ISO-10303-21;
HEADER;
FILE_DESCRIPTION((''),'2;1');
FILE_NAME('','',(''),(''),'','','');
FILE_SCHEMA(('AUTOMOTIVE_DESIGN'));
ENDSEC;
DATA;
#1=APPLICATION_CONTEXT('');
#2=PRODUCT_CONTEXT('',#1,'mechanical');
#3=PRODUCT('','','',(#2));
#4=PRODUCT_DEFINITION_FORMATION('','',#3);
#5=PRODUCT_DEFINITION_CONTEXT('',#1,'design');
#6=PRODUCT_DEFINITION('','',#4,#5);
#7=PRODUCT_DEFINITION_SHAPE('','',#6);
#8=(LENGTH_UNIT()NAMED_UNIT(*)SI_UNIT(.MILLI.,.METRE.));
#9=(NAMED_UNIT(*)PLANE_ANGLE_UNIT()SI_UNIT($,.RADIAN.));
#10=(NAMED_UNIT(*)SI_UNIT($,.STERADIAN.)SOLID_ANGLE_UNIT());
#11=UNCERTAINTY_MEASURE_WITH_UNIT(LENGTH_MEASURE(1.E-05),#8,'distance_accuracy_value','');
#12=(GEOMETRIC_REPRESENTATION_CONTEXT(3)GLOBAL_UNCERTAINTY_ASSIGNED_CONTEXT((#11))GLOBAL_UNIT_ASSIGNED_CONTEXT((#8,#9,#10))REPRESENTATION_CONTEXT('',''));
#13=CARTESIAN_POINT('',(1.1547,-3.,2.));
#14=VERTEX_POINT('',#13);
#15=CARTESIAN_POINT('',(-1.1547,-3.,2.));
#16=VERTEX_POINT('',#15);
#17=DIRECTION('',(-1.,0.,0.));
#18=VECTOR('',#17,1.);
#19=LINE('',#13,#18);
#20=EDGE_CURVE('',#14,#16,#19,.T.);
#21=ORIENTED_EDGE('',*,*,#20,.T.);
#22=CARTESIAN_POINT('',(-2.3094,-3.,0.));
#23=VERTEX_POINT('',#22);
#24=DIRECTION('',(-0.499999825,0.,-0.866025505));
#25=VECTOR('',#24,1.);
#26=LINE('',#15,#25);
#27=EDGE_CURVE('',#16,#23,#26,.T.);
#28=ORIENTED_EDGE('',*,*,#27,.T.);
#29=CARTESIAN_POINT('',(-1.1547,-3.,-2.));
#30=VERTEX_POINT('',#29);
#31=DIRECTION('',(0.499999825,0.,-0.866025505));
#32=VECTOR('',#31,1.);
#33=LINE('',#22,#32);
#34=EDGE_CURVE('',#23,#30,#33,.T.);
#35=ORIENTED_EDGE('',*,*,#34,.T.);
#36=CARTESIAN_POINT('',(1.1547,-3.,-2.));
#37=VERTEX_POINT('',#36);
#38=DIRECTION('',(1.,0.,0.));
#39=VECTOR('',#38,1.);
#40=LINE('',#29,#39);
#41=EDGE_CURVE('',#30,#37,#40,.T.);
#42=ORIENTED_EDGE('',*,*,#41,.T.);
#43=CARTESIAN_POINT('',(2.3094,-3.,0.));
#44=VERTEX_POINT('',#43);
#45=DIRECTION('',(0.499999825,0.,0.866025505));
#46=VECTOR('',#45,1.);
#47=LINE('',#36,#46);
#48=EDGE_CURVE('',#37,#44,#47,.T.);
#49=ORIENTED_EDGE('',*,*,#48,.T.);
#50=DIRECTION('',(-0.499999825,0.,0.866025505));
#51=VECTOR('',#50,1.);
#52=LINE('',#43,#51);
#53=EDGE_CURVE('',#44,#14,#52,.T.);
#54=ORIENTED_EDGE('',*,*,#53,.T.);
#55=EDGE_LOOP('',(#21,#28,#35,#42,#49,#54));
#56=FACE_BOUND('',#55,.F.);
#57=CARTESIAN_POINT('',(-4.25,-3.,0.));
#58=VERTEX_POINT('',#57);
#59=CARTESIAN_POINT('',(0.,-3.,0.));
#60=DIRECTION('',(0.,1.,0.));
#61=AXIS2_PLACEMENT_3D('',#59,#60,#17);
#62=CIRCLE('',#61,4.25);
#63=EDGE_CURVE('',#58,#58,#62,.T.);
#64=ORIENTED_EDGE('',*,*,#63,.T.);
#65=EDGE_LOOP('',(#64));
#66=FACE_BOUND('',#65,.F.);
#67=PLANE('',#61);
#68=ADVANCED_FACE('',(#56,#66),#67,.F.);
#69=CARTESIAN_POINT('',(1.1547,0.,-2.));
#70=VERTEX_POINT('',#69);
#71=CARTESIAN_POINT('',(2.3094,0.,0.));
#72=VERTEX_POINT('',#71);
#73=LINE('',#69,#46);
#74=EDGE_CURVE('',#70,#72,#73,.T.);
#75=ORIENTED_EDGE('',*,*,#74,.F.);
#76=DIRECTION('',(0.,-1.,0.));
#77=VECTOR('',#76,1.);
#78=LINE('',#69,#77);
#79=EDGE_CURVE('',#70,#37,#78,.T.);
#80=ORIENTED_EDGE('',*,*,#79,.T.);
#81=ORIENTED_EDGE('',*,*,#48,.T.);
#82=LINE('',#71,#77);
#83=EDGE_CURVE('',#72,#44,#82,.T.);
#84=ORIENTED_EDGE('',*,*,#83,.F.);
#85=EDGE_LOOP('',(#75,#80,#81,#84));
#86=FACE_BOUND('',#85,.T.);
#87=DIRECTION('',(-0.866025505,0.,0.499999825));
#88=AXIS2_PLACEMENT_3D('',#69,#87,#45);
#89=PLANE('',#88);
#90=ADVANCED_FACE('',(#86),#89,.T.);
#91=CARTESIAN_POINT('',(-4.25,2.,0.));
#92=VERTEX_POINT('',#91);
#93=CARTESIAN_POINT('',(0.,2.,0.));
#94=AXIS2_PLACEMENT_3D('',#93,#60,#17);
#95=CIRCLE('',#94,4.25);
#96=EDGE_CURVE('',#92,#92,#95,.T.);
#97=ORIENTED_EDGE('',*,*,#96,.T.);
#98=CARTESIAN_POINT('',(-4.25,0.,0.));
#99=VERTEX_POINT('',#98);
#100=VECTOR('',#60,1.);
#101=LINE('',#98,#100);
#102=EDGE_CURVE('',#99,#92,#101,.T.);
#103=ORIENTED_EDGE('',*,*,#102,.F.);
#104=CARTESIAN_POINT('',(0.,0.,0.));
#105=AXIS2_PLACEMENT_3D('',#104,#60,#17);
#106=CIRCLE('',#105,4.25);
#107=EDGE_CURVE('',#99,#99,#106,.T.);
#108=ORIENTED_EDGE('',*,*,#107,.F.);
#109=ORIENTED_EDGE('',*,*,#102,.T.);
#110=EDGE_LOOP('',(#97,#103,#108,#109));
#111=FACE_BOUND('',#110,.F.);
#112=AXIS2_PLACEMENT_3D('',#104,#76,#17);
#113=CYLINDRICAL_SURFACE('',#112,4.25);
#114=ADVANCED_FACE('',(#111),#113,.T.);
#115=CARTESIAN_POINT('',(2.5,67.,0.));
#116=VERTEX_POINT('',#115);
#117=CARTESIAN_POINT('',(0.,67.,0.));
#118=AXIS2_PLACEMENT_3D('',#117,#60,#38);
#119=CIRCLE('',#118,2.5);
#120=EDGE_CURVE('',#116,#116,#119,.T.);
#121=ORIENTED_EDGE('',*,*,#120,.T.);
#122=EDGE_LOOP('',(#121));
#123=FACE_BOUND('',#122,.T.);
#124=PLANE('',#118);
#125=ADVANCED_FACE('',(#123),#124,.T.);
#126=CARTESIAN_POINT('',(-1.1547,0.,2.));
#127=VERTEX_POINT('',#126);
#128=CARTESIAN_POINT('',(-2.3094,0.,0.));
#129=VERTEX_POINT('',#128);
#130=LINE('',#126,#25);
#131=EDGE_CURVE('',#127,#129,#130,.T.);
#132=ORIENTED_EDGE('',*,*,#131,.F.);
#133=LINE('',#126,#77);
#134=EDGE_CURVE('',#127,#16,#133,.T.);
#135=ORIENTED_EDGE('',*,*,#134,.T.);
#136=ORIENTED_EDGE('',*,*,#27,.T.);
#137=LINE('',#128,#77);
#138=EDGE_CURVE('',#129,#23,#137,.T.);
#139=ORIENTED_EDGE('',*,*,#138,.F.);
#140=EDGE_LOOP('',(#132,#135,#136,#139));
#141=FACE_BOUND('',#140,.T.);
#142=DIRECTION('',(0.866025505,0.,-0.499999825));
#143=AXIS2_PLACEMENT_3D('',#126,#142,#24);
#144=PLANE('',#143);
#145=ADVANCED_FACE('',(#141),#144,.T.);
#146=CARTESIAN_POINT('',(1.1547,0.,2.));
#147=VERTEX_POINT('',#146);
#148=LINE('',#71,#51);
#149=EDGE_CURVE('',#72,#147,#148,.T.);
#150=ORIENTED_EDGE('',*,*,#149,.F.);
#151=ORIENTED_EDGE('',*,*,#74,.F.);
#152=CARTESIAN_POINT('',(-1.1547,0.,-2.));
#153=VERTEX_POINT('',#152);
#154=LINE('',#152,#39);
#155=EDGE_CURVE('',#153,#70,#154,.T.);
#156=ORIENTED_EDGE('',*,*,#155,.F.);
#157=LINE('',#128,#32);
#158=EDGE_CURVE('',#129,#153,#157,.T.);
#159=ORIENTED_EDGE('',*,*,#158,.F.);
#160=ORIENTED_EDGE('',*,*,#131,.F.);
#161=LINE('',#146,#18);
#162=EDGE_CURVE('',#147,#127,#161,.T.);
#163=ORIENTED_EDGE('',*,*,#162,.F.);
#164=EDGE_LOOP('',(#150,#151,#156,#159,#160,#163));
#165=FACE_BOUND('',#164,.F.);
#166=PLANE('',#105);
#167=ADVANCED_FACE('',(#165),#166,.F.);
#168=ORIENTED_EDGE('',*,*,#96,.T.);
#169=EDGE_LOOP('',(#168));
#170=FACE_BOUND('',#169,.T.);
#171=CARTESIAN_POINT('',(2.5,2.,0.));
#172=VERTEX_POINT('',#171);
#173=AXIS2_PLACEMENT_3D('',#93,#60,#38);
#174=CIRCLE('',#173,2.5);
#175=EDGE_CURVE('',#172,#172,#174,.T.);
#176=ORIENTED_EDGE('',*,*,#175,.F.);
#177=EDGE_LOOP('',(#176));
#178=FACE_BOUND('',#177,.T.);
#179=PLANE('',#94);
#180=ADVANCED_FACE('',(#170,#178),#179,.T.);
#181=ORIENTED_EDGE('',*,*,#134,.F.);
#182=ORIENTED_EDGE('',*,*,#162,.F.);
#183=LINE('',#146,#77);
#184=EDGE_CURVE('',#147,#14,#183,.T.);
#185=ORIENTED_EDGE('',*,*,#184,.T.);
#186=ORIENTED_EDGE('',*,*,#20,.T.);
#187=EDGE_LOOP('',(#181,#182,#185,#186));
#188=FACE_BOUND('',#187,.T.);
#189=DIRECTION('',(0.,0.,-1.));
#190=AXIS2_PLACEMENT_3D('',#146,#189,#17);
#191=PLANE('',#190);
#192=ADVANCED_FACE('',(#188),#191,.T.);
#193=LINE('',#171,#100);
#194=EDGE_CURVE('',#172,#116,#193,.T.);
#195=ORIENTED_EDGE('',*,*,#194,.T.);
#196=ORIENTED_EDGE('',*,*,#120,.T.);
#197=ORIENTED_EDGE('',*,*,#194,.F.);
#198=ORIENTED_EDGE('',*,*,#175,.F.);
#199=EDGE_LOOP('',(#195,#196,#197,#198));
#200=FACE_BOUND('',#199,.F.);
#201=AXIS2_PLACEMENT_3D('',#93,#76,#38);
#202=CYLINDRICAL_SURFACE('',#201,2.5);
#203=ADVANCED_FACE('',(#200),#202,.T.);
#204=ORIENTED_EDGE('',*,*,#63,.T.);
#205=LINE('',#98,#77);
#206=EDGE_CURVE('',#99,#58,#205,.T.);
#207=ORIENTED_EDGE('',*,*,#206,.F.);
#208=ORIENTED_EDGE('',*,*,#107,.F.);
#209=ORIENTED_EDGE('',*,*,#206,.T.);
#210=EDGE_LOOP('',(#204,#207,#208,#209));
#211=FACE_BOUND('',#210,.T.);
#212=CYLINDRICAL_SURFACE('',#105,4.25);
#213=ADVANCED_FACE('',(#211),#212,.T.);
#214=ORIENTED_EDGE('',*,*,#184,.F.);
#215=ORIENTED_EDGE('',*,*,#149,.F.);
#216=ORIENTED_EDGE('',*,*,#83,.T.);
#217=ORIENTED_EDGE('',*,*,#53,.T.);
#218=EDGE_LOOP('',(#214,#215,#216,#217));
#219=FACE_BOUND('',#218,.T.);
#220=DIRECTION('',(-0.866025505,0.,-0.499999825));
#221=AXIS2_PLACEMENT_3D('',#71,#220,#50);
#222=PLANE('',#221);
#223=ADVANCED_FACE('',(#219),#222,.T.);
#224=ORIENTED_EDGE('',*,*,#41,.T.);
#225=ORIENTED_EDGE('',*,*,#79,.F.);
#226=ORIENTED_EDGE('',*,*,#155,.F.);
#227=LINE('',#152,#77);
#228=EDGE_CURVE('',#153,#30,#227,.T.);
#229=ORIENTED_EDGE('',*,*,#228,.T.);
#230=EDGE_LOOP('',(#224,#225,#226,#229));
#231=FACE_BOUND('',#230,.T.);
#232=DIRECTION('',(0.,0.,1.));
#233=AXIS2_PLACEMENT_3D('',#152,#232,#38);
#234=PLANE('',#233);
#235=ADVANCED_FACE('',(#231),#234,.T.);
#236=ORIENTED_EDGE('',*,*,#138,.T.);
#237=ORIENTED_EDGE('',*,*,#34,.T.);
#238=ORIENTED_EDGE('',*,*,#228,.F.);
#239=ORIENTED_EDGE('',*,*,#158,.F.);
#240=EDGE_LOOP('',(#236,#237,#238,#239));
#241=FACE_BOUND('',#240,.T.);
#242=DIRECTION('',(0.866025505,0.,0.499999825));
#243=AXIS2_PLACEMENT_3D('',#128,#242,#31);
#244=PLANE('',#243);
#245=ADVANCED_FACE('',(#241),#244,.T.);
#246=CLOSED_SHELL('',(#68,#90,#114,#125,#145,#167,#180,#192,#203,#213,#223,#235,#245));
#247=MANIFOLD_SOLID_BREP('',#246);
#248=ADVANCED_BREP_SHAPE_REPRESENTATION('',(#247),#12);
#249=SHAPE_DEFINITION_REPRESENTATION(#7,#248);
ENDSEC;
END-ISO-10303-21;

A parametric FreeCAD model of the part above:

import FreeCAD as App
import Part
import Sketcher
Q = App.Units.Quantity

doc = App.newDocument("Part")
params = doc.addObject("Spreadsheet::Sheet", "Params")
for row, (alias, value) in enumerate([
    ("sketch1_diameter", "8.5 mm"),
    ("pad1_length", "2 mm"),
    ("sketch2_diameter", "8.5 mm"),
    ("pad2_length", "3 mm"),
    ("sketch3_diameter", "5 mm"),
    ("pad3_length", "65 mm"),
], start=1):
    params.set(f"A{row}", alias)
    params.set(f"B{row}", "=" + value)
    params.setAlias(f"B{row}", alias)

body = doc.addObject("PartDesign::Body", "Body")

sketch1 = body.newObject("Sketcher::SketchObject", "Sketch")
sketch1.AttachmentSupport = (doc.getObject("XZ_Plane"), [""])
sketch1.MapMode = "FlatFace"
sketch1.addGeometry(Part.Circle(App.Vector(0, 0, 0), App.Vector(0, 0, 1), 4.2), False)
sketch1.addConstraint([
    Sketcher.Constraint("Coincident", 0, 3, -1, 1),
    Sketcher.Constraint("Diameter", 0, 8.5),
])
sketch1.setExpression("Constraints[1]", "Params.sketch1_diameter")
pad1 = body.newObject("PartDesign::Pad", "Pad")
pad1.Profile = sketch1
pad1.setExpression("Length", "Params.pad1_length")
pad1.Reversed = True

sketch2 = body.newObject("Sketcher::SketchObject", "Sketch001")
sketch2.AttachmentSupport = (doc.getObject("XZ_Plane"), [""])
sketch2.MapMode = "FlatFace"
sketch2.addGeometry([
    Part.Circle(App.Vector(0, 0, 0), App.Vector(0, 0, 1), 4.2),
    Part.LineSegment(App.Vector(-1.2, 2, 0), App.Vector(-2.3, 0, 0)),
    Part.LineSegment(App.Vector(-2.3, 0, 0), App.Vector(-1.2, -2, 0)),
    Part.LineSegment(App.Vector(-1.2, -2, 0), App.Vector(1.2, -2, 0)),
    Part.LineSegment(App.Vector(1.2, -2, 0), App.Vector(2.3, 0, 0)),
    Part.LineSegment(App.Vector(2.3, 0, 0), App.Vector(1.2, 2, 0)),
    Part.LineSegment(App.Vector(1.2, 2, 0), App.Vector(-1.2, 2, 0)),
], False)
sketch2.addConstraint([
    Sketcher.Constraint("Coincident", 1, 2, 2, 1),
    Sketcher.Constraint("Coincident", 2, 2, 3, 1),
    Sketcher.Constraint("Coincident", 3, 2, 4, 1),
    Sketcher.Constraint("Coincident", 4, 2, 5, 1),
    Sketcher.Constraint("Coincident", 5, 2, 6, 1),
    Sketcher.Constraint("Coincident", 6, 2, 1, 1),
    Sketcher.Constraint("Horizontal", 3),
    Sketcher.Constraint("Horizontal", 6),
    Sketcher.Constraint("Coincident", 0, 3, -1, 1),
    Sketcher.Constraint("Symmetric", 1, 2, 4, 2, -1, 1),
    Sketcher.Constraint("Symmetric", 2, 2, 5, 2, -1, 1),
    Sketcher.Constraint("PointOnObject", 1, 2, -1),
    Sketcher.Constraint("Parallel", 1, 4),
    Sketcher.Constraint("Vertical", 3, 2, 5, 2),
    Sketcher.Constraint("Diameter", 0, 8.5),
    Sketcher.Constraint("DistanceY", 3, 2, 5, 2, 4.0),
    Sketcher.Constraint("Angle", 1, Q("-120 deg")),
    Sketcher.Constraint("DistanceX", 3, 1, 3, 2, 2.3094),
])
sketch2.setExpression("Constraints[14]", "Params.sketch2_diameter")
pad2 = body.newObject("PartDesign::Pad", "Pad001")
pad2.Profile = sketch2
pad2.setExpression("Length", "Params.pad2_length")

sketch3 = body.newObject("Sketcher::SketchObject", "Sketch002")
sketch3.AttachmentSupport = (doc.getObject("XZ_Plane"), [""])
sketch3.MapMode = "FlatFace"
sketch3.AttachmentOffset = App.Placement(App.Vector(0, 0, -2), App.Rotation())
sketch3.addGeometry(Part.Circle(App.Vector(0, 0, 0), App.Vector(0, 0, 1), 2.5), False)
sketch3.addConstraint([
    Sketcher.Constraint("Coincident", 0, 3, -1, 1),
    Sketcher.Constraint("Diameter", 0, 5.0),
])
sketch3.setExpression("Constraints[1]", "Params.sketch3_diameter")
pad3 = body.newObject("PartDesign::Pad", "Pad002")
pad3.Profile = sketch3
pad3.setExpression("Length", "Params.pad3_length")
pad3.Reversed = True

doc.recompute()
